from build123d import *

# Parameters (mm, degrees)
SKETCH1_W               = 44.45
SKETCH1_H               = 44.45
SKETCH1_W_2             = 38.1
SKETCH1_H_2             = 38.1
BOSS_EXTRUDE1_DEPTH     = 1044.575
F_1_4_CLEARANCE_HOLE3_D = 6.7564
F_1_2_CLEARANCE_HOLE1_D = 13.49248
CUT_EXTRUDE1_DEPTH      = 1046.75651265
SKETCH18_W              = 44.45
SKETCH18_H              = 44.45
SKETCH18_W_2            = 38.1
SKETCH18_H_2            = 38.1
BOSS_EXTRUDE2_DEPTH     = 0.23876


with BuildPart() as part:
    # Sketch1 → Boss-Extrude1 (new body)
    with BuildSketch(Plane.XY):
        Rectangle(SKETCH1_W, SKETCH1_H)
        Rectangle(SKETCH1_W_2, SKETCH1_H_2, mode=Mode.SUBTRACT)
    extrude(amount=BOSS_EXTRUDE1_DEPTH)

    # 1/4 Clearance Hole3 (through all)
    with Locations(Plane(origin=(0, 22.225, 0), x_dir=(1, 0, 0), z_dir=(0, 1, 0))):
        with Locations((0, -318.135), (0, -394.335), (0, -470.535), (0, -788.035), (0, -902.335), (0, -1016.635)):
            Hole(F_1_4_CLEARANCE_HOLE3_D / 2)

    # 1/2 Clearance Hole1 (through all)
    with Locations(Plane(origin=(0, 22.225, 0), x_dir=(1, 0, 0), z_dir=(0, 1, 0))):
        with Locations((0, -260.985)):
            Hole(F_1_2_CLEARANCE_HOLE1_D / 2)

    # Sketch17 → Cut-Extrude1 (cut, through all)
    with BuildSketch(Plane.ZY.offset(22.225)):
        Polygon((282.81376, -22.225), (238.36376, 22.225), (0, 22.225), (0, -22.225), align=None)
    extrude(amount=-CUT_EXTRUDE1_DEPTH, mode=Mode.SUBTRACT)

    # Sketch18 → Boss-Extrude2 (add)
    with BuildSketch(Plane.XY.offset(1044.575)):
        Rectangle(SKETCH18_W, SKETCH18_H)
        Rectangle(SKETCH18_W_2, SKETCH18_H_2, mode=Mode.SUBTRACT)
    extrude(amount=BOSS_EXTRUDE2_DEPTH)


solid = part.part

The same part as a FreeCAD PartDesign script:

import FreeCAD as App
import Part
import Sketcher

V = App.Vector
Q = App.Units.Quantity


def add_polygon(sketch, points):
    """Adds a closed chain of lines whose ends are joined by coincident constraints."""
    first, n = sketch.GeometryCount, len(points)
    for a, b in zip(points, points[1:] + points[:1]):
        sketch.addGeometry(Part.LineSegment(App.Vector(*a, 0), App.Vector(*b, 0)), False)
    for i in range(n):
        sketch.addConstraint(Sketcher.Constraint("Coincident", first + i, 2, first + (i + 1) % n, 1))

doc = App.newDocument("Part")
body = doc.addObject("PartDesign::Body", "Body")

sketch1 = body.newObject("Sketcher::SketchObject", "Sketch")
sketch1.AttachmentSupport = (doc.getObject("XY_Plane"), [""])
sketch1.MapMode = "FlatFace"
add_polygon(sketch1, [(-22, 22), (-22, -22), (22, -22), (22, 22)])
add_polygon(sketch1, [(19, -19), (-19, -19), (-19, 19), (19, 19)])
sketch1.addConstraint([
    Sketcher.Constraint("Vertical", 0),
    Sketcher.Constraint("Horizontal", 1),
    Sketcher.Constraint("Vertical", 2),
    Sketcher.Constraint("Horizontal", 3),
    Sketcher.Constraint("Horizontal", 4),
    Sketcher.Constraint("Vertical", 5),
    Sketcher.Constraint("Horizontal", 6),
    Sketcher.Constraint("Vertical", 7),
    Sketcher.Constraint("Symmetric", 0, 2, 2, 2, -1, 1),
    Sketcher.Constraint("Symmetric", 4, 2, 6, 2, -1, 1),
    Sketcher.Constraint("Equal", 3, 0),
    Sketcher.Constraint("Equal", 6, 5),
    Sketcher.Constraint("DistanceX", 4, 2, 4, 1, Q("1.5 in")),
    Sketcher.Constraint("DistanceX", 1, 1, 1, 2, Q("1.75 in")),
])
pad1 = body.newObject("PartDesign::Pad", "Pad")
pad1.Profile = sketch1
pad1.Length = Q("41.125 in")

sketch2 = body.newObject("Sketcher::SketchObject", "Sketch001")
sketch2.AttachmentSupport = (doc.getObject("XZ_Plane"), [""])
sketch2.MapMode = "FlatFace"
sketch2.AttachmentOffset = App.Placement(V(0, 0, -0.875 * 25.4), App.Rotation())
sketch2.addGeometry([
    Part.Circle(V(0, 318.1, 0), V(0, 0, 1), 3.4),
    Part.Circle(V(0, 394.3, 0), V(0, 0, 1), 3.4),
    Part.Circle(V(0, 470.5, 0), V(0, 0, 1), 3.4),
    Part.Circle(V(0, 788, 0), V(0, 0, 1), 3.4),
    Part.Circle(V(0, 902.3, 0), V(0, 0, 1), 3.4),
    Part.Circle(V(0, 1016.6, 0), V(0, 0, 1), 3.4),
], False)
sketch2.addConstraint([
    Sketcher.Constraint("Equal", 0, 1),
    Sketcher.Constraint("Equal", 1, 2),
    Sketcher.Constraint("Equal", 2, 3),
    Sketcher.Constraint("Equal", 3, 4),
    Sketcher.Constraint("Equal", 4, 5),
    Sketcher.Constraint("PointOnObject", 0, 3, -2),
    Sketcher.Constraint("PointOnObject", 1, 3, -2),
    Sketcher.Constraint("PointOnObject", 2, 3, -2),
    Sketcher.Constraint("PointOnObject", 3, 3, -2),
    Sketcher.Constraint("PointOnObject", 4, 3, -2),
    Sketcher.Constraint("PointOnObject", 5, 3, -2),
    Sketcher.Constraint("Diameter", 0, Q("0.266 in")),
    Sketcher.Constraint("DistanceY", 0, 3, 1, 3, Q("3 in")),
    Sketcher.Constraint("DistanceY", 1, 3, 2, 3, Q("3 in")),
    Sketcher.Constraint("DistanceY", 2, 3, 4, 3, Q("17 in")),
    Sketcher.Constraint("DistanceY", 3, 3, 5, 3, Q("9 in")),
    Sketcher.Constraint("DistanceY", 2, 3, 3, 3, Q("12.5 in")),
    Sketcher.Constraint("DistanceY", -1, 1, 0, 3, Q("12.525 in")),
])
doc.recompute()
hole = body.newObject("PartDesign::Hole", "Hole")
hole.Profile = sketch2
hole.ThreadType = "None"
hole.Diameter = Q("0.266 in")
hole.DepthType = "ThroughAll"
hole.Reversed = True

sketch3 = body.newObject("Sketcher::SketchObject", "Sketch002")
sketch3.AttachmentSupport = (doc.getObject("XZ_Plane"), [""])
sketch3.MapMode = "FlatFace"
sketch3.AttachmentOffset = App.Placement(V(0, 0, -0.875 * 25.4), App.Rotation())
sketch3.addGeometry(Part.Circle(V(0, 261, 0), V(0, 0, 1), 7), False)
sketch3.addConstraint([
    Sketcher.Constraint("PointOnObject", 0, 3, -2),
    Sketcher.Constraint("Diameter", 0, Q("0.5312 in")),
    Sketcher.Constraint("DistanceY", -1, 1, 0, 3, Q("10.275 in")),
])
doc.recompute()
hole2 = body.newObject("PartDesign::Hole", "Hole001")
hole2.Profile = sketch3
hole2.ThreadType = "None"
hole2.Diameter = Q("0.5312 in")
hole2.DepthType = "ThroughAll"
hole2.Reversed = True

sketch4 = body.newObject("Sketcher::SketchObject", "Sketch003")
sketch4.AttachmentSupport = (doc.getObject("YZ_Plane"), [""])
sketch4.MapMode = "FlatFace"
sketch4.AttachmentOffset = App.Placement(V(0, 0, -0.875 * 25.4), App.Rotation())
add_polygon(sketch4, [(-22, 283), (22, 238), (22, 0), (-22, 0)])
sketch4.addConstraint([
    Sketcher.Constraint("Vertical", 1),
    Sketcher.Constraint("Horizontal", 2),
    Sketcher.Constraint("Vertical", 3),
    Sketcher.Constraint("Symmetric", 1, 2, 2, 2, -1, 1),
    Sketcher.Constraint("Angle", 0, Q("-45 deg")),
    Sketcher.Constraint("DistanceX", 2, 2, 2, 1, Q("1.75 in")),
    Sketcher.Constraint("DistanceY", 1, 2, 1, 1, Q("9.3844 in")),
])
pocket1 = body.newObject("PartDesign::Pocket", "Pocket")
pocket1.Profile = sketch4
pocket1.Type = "ThroughAll"
pocket1.Reversed = True

sketch5 = body.newObject("Sketcher::SketchObject", "Sketch004")
sketch5.AttachmentSupport = (doc.getObject("XY_Plane"), [""])
sketch5.MapMode = "FlatFace"
sketch5.AttachmentOffset = App.Placement(V(0, 0, 41.125 * 25.4), App.Rotation())
add_polygon(sketch5, [(-22, 22), (-22, -22), (22, -22), (22, 22)])
add_polygon(sketch5, [(19, -19), (-19, -19), (-19, 19), (19, 19)])
sketch5.addConstraint([
    Sketcher.Constraint("Vertical", 0),
    Sketcher.Constraint("Horizontal", 1),
    Sketcher.Constraint("Vertical", 2),
    Sketcher.Constraint("Horizontal", 3),
    Sketcher.Constraint("Horizontal", 4),
    Sketcher.Constraint("Vertical", 5),
    Sketcher.Constraint("Horizontal", 6),
    Sketcher.Constraint("Vertical", 7),
    Sketcher.Constraint("Symmetric", 0, 2, 2, 2, -1, 1),
    Sketcher.Constraint("Symmetric", 4, 2, 6, 2, -1, 1),
    Sketcher.Constraint("Equal", 3, 0),
    Sketcher.Constraint("Equal", 6, 5),
    Sketcher.Constraint("DistanceX", 4, 2, 4, 1, Q("1.5 in")),
    Sketcher.Constraint("DistanceX", 1, 1, 1, 2, Q("1.75 in")),
])
pad2 = body.newObject("PartDesign::Pad", "Pad001")
pad2.Profile = sketch5
pad2.Length = Q("0.0094 in")

doc.recompute()
